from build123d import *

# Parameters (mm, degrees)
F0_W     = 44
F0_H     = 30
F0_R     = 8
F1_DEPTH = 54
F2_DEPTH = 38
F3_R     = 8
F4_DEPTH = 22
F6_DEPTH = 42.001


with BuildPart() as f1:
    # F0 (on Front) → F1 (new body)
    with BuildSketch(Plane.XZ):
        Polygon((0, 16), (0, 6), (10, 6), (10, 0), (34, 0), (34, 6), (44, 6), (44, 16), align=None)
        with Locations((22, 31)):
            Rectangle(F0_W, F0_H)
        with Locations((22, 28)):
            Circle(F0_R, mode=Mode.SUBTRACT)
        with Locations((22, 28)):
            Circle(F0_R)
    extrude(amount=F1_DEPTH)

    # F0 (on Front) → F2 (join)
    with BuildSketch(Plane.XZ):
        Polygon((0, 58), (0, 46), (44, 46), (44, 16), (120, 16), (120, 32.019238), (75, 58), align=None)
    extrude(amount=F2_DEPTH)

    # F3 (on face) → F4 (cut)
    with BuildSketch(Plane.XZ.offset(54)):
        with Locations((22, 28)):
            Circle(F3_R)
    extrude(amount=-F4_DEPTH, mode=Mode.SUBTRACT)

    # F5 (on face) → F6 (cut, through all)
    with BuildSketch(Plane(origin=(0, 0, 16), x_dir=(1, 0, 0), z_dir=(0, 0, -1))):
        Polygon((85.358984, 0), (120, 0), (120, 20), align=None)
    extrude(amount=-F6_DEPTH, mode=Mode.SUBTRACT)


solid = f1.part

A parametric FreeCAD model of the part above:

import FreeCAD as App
import Part
import Sketcher

V = App.Vector
Q = App.Units.Quantity

doc = App.newDocument("Part")
body = doc.addObject("PartDesign::Body", "Body")

# Sketch on XZ plane
sketch1 = doc.addObject("Sketcher::SketchObject", "Sketch")
body.addObject(sketch1)
sketch1.AttachmentSupport = (doc.XZ_Plane, [""])
sketch1.MapMode = "FlatFace"
sketch1.addGeometry(Part.LineSegment(V(0, 6, 0), V(10, 6, 0)), False)
sketch1.addGeometry(Part.LineSegment(V(10, 6, 0), V(10, 0, 0)), False)
sketch1.addGeometry(Part.LineSegment(V(10, 0, 0), V(34, 0, 0)), False)
sketch1.addGeometry(Part.LineSegment(V(34, 0, 0), V(34, 6, 0)), False)
sketch1.addGeometry(Part.LineSegment(V(34, 6, 0), V(44, 6, 0)), False)
sketch1.addGeometry(Part.LineSegment(V(44, 6, 0), V(44, 46, 0)), False)
sketch1.addGeometry(Part.LineSegment(V(44, 46, 0), V(0, 46, 0)), False)
sketch1.addGeometry(Part.LineSegment(V(0, 46, 0), V(0, 6, 0)), False)
sketch1.addConstraint(Sketcher.Constraint("Coincident", 0, 2, 1, 1))
sketch1.addConstraint(Sketcher.Constraint("Coincident", 1, 2, 2, 1))
sketch1.addConstraint(Sketcher.Constraint("Coincident", 2, 2, 3, 1))
sketch1.addConstraint(Sketcher.Constraint("Coincident", 3, 2, 4, 1))
sketch1.addConstraint(Sketcher.Constraint("Coincident", 4, 2, 5, 1))
sketch1.addConstraint(Sketcher.Constraint("Coincident", 5, 2, 6, 1))
sketch1.addConstraint(Sketcher.Constraint("Coincident", 6, 2, 7, 1))
sketch1.addConstraint(Sketcher.Constraint("Coincident", 7, 2, 0, 1))
sketch1.addConstraint(Sketcher.Constraint("Horizontal", 0))
sketch1.addConstraint(Sketcher.Constraint("Vertical", 1))
sketch1.addConstraint(Sketcher.Constraint("Horizontal", 2))
sketch1.addConstraint(Sketcher.Constraint("Vertical", 3))
sketch1.addConstraint(Sketcher.Constraint("Horizontal", 4))
sketch1.addConstraint(Sketcher.Constraint("Vertical", 5))
sketch1.addConstraint(Sketcher.Constraint("Horizontal", 6))
sketch1.addConstraint(Sketcher.Constraint("Vertical", 7))
sketch1.addConstraint(Sketcher.Constraint("PointOnObject", 1, 2, -1))
sketch1.addConstraint(Sketcher.Constraint("PointOnObject", 6, 2, -2))
sketch1.addConstraint(Sketcher.Constraint("Horizontal", 0, 2, 3, 2))
sketch1.addConstraint(Sketcher.Constraint("Equal", 0, 4))
sketch1.addConstraint(Sketcher.Constraint("DistanceX", 0, 1, 0, 2, Q("10 mm")))
sketch1.addConstraint(Sketcher.Constraint("DistanceX", 2, 1, 2, 2, Q("24 mm")))
sketch1.addConstraint(Sketcher.Constraint("DistanceY", 1, 2, 1, 1, Q("6 mm")))
sketch1.addConstraint(Sketcher.Constraint("DistanceY", 5, 1, 5, 2, Q("40 mm")))
pad1 = doc.addObject("PartDesign::Pad", "Pad")
body.addObject(pad1)
pad1.Profile = sketch1
pad1.Length = 54

# Sketch on XZ plane
sketch2 = doc.addObject("Sketcher::SketchObject", "Sketch001")
body.addObject(sketch2)
sketch2.AttachmentSupport = (doc.XZ_Plane, [""])
sketch2.MapMode = "FlatFace"
sketch2.addGeometry(Part.LineSegment(V(0, 58, 0), V(0, 46, 0)), False)
sketch2.addGeometry(Part.LineSegment(V(0, 46, 0), V(44, 46, 0)), False)
sketch2.addGeometry(Part.LineSegment(V(44, 46, 0), V(44, 16, 0)), False)
sketch2.addGeometry(Part.LineSegment(V(44, 16, 0), V(120, 16, 0)), False)
sketch2.addGeometry(Part.LineSegment(V(120, 16, 0), V(120, 32, 0)), False)
sketch2.addGeometry(Part.LineSegment(V(120, 32, 0), V(75, 58, 0)), False)
sketch2.addGeometry(Part.LineSegment(V(75, 58, 0), V(0, 58, 0)), False)
sketch2.addConstraint(Sketcher.Constraint("Coincident", 0, 2, 1, 1))
sketch2.addConstraint(Sketcher.Constraint("Coincident", 1, 2, 2, 1))
sketch2.addConstraint(Sketcher.Constraint("Coincident", 2, 2, 3, 1))
sketch2.addConstraint(Sketcher.Constraint("Coincident", 3, 2, 4, 1))
sketch2.addConstraint(Sketcher.Constraint("Coincident", 4, 2, 5, 1))
sketch2.addConstraint(Sketcher.Constraint("Coincident", 5, 2, 6, 1))
sketch2.addConstraint(Sketcher.Constraint("Coincident", 6, 2, 0, 1))
sketch2.addConstraint(Sketcher.Constraint("Vertical", 0))
sketch2.addConstraint(Sketcher.Constraint("Horizontal", 1))
sketch2.addConstraint(Sketcher.Constraint("Vertical", 2))
sketch2.addConstraint(Sketcher.Constraint("Horizontal", 3))
sketch2.addConstraint(Sketcher.Constraint("Vertical", 4))
sketch2.addConstraint(Sketcher.Constraint("Horizontal", 6))
sketch2.addConstraint(Sketcher.Constraint("PointOnObject", 0, 2, -2))
sketch2.addConstraint(Sketcher.Constraint("DistanceX", 1, 1, 1, 2, Q("44 mm")))
sketch2.addConstraint(Sketcher.Constraint("DistanceX", 3, 1, 3, 2, Q("76 mm")))
sketch2.addConstraint(Sketcher.Constraint("DistanceX", 6, 2, 6, 1, Q("75 mm")))
sketch2.addConstraint(Sketcher.Constraint("DistanceY", 0, 2, 0, 1, Q("12 mm")))
sketch2.addConstraint(Sketcher.Constraint("DistanceY", 2, 2, 2, 1, Q("30 mm")))
sketch2.addConstraint(Sketcher.Constraint("Angle", 5, Q("150 deg")))
sketch2.addConstraint(Sketcher.Constraint("DistanceY", -1, 1, 0, 2, Q("46 mm")))
pad2 = doc.addObject("PartDesign::Pad", "Pad001")
body.addObject(pad2)
pad2.Profile = sketch2
pad2.Length = 38

# Sketch on XZ plane
sketch3 = doc.addObject("Sketcher::SketchObject", "Sketch002")
body.addObject(sketch3)
sketch3.AttachmentSupport = (doc.XZ_Plane, [""])
sketch3.MapMode = "FlatFace"
sketch3.AttachmentOffset = App.Placement(V(0, 0, 54), App.Rotation())
sketch3.addGeometry(Part.Circle(V(22, 28, 0), V(0, 0, 1), 8), False)
sketch3.addConstraint(Sketcher.Constraint("Diameter", 0, Q("16 mm")))
sketch3.addConstraint(Sketcher.Constraint("DistanceX", -1, 1, 0, 3, Q("22 mm")))
sketch3.addConstraint(Sketcher.Constraint("DistanceY", -1, 1, 0, 3, Q("28 mm")))
pocket1 = doc.addObject("PartDesign::Pocket", "Pocket")
body.addObject(pocket1)
pocket1.Profile = sketch3
pocket1.Length = 22

# Sketch on XY plane
sketch4 = doc.addObject("Sketcher::SketchObject", "Sketch003")
body.addObject(sketch4)
sketch4.AttachmentSupport = (doc.XY_Plane, [""])
sketch4.MapMode = "FlatFace"
sketch4.AttachmentOffset = App.Placement(V(0, 0, 16), App.Rotation())
sketch4.addGeometry(Part.LineSegment(V(85, 0, 0), V(120, 0, 0)), False)
sketch4.addGeometry(Part.LineSegment(V(120, 0, 0), V(120, -20, 0)), False)
sketch4.addGeometry(Part.LineSegment(V(120, -20, 0), V(85, 0, 0)), False)
sketch4.addConstraint(Sketcher.Constraint("Coincident", 0, 2, 1, 1))
sketch4.addConstraint(Sketcher.Constraint("Coincident", 1, 2, 2, 1))
sketch4.addConstraint(Sketcher.Constraint("Coincident", 2, 2, 0, 1))
sketch4.addConstraint(Sketcher.Constraint("Horizontal", 0))
sketch4.addConstraint(Sketcher.Constraint("Vertical", 1))
sketch4.addConstraint(Sketcher.Constraint("PointOnObject", 0, 2, -1))
sketch4.addConstraint(Sketcher.Constraint("DistanceY", 1, 2, 1, 1, Q("20 mm")))
sketch4.addConstraint(Sketcher.Constraint("Angle", 2, Q("150 deg")))
sketch4.addConstraint(Sketcher.Constraint("DistanceX", -1, 1, 0, 2, Q("120 mm")))
pocket2 = doc.addObject("PartDesign::Pocket", "Pocket001")
body.addObject(pocket2)
pocket2.Profile = sketch4
pocket2.Type = "ThroughAll"
pocket2.Reversed = True

doc.recompute()
